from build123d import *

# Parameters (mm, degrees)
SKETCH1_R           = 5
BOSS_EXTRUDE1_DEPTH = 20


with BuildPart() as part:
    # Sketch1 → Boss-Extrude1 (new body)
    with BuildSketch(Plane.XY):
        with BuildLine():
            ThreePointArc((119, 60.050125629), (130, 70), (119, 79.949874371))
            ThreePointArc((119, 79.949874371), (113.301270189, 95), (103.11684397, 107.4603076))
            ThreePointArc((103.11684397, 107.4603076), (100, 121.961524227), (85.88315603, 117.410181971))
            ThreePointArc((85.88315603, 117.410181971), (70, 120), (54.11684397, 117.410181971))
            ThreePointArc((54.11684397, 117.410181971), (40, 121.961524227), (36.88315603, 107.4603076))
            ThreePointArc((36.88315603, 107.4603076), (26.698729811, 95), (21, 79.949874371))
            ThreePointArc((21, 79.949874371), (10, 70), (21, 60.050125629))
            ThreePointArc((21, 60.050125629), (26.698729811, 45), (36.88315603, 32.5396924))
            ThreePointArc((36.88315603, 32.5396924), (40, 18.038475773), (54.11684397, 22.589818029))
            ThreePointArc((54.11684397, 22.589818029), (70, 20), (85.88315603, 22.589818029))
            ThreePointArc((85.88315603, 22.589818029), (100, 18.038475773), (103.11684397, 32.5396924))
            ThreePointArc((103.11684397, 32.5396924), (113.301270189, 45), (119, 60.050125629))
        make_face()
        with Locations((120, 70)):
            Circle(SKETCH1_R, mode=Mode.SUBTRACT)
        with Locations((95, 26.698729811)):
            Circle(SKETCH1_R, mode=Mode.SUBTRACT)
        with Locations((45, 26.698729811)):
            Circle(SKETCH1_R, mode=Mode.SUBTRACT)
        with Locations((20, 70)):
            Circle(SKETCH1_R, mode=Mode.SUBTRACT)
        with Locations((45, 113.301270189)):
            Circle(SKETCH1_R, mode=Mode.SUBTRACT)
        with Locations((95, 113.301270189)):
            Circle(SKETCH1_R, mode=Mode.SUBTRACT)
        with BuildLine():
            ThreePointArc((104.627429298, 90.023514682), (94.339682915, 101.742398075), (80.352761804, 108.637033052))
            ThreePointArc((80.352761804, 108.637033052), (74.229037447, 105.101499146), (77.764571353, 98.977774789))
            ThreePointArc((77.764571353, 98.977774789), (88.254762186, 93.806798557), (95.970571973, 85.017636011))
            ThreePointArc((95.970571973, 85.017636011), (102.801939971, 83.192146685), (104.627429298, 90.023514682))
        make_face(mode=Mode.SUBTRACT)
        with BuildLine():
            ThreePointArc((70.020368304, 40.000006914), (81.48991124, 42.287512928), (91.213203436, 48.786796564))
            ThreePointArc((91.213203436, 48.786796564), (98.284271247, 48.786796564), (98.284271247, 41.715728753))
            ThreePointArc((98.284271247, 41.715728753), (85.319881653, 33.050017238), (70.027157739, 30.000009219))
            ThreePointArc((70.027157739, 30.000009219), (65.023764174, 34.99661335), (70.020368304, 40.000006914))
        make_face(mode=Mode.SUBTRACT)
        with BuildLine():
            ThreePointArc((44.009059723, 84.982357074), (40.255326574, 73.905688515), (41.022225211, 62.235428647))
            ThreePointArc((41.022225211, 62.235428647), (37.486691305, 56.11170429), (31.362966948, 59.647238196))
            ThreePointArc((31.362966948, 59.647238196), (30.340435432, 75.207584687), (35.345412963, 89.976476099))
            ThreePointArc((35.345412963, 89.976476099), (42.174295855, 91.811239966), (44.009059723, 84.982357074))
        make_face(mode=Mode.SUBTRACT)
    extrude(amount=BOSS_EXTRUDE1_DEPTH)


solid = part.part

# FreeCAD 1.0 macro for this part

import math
import FreeCAD as App
import Part
import Sketcher

V = App.Vector
Q = App.Units.Quantity

doc = App.newDocument("Part")
body = doc.addObject("PartDesign::Body", "Body")

# Sketch on XY plane
sketch1 = body.newObject("Sketcher::SketchObject", "Sketch")
sketch1.AttachmentSupport = (doc.getObject("XY_Plane"), [""])
sketch1.MapMode = "FlatFace"
sketch1.addGeometry([
    Part.ArcOfCircle(Part.Circle(V(120, 70, 0), V(0, 0, 1), 10), math.radians(-96), math.radians(96)),  # 0
    Part.ArcOfCircle(Part.Circle(V(70, 70, 0), V(0, 0, 1), 50), math.radians(11), math.radians(49)),  # 1
    Part.ArcOfCircle(Part.Circle(V(95, 113.3, 0), V(0, 0, 1), 10), math.radians(-36), math.radians(156)),  # 2
    Part.ArcOfCircle(Part.Circle(V(70, 70, 0), V(0, 0, 1), 50), math.radians(71), math.radians(109)),  # 3
    Part.ArcOfCircle(Part.Circle(V(45, 113.3, 0), V(0, 0, 1), 10), math.radians(24), math.radians(216)),  # 4
    Part.ArcOfCircle(Part.Circle(V(70, 70, 0), V(0, 0, 1), 50), math.radians(131), math.radians(169)),  # 5
    Part.ArcOfCircle(Part.Circle(V(20, 70, 0), V(0, 0, 1), 10), math.radians(84), math.radians(276)),  # 6
    Part.ArcOfCircle(Part.Circle(V(70, 70, 0), V(0, 0, 1), 50), math.radians(-169), math.radians(-131)),  # 7
    Part.ArcOfCircle(Part.Circle(V(45, 26.7, 0), V(0, 0, 1), 10), math.radians(144), math.radians(336)),  # 8
    Part.ArcOfCircle(Part.Circle(V(70, 70, 0), V(0, 0, 1), 50), math.radians(-109), math.radians(-71)),  # 9
    Part.ArcOfCircle(Part.Circle(V(95, 26.7, 0), V(0, 0, 1), 10), math.radians(-156), math.radians(36)),  # 10
    Part.ArcOfCircle(Part.Circle(V(70, 70, 0), V(0, 0, 1), 50), math.radians(-49), math.radians(-11)),  # 11
    Part.Circle(V(45, 26.7, 0), V(0, 0, 1), 5),  # 12
    Part.Circle(V(95, 26.7, 0), V(0, 0, 1), 5),  # 13
    Part.ArcOfCircle(Part.Circle(V(70, 35, 0), V(0, 0, 1), 5), math.radians(90), math.radians(270)),  # 14
    Part.ArcOfCircle(Part.Circle(V(70, 70, 0), V(0, 0, 1), 30), math.radians(-90), math.radians(-45)),  # 15
    Part.ArcOfCircle(Part.Circle(V(94.7, 45.3, 0), V(0, 0, 1), 5), math.radians(-45), math.radians(135)),  # 16
    Part.ArcOfCircle(Part.Circle(V(70, 70, 0), V(0, 0, 1), 40), math.radians(-90), math.radians(-45)),  # 17
    Part.Circle(V(20, 70, 0), V(0, 0, 1), 5),  # 18
    Part.ArcOfCircle(Part.Circle(V(39.7, 87.5, 0), V(0, 0, 1), 5), math.radians(-30), math.radians(150)),  # 19
    Part.ArcOfCircle(Part.Circle(V(70, 70, 0), V(0, 0, 1), 30), math.radians(150), math.radians(195)),  # 20
    Part.ArcOfCircle(Part.Circle(V(36.2, 60.9, 0), V(0, 0, 1), 5), math.radians(-165), math.radians(15)),  # 21
    Part.ArcOfCircle(Part.Circle(V(70, 70, 0), V(0, 0, 1), 40), math.radians(150), math.radians(195)),  # 22
    Part.Circle(V(45, 113.3, 0), V(0, 0, 1), 5),  # 23
    Part.Circle(V(120, 70, 0), V(0, 0, 1), 5),  # 24
    Part.ArcOfCircle(Part.Circle(V(70, 70, 0), V(0, 0, 1), 40), math.radians(30), math.radians(75)),  # 25
    Part.ArcOfCircle(Part.Circle(V(100.3, 87.5, 0), V(0, 0, 1), 5), math.radians(-150), math.radians(30)),  # 26
    Part.ArcOfCircle(Part.Circle(V(70, 70, 0), V(0, 0, 1), 30), math.radians(30), math.radians(75)),  # 27
    Part.ArcOfCircle(Part.Circle(V(79.1, 103.8, 0), V(0, 0, 1), 5), math.radians(75), math.radians(255)),  # 28
    Part.Circle(V(95, 113.3, 0), V(0, 0, 1), 5),  # 29
], False)
sketch1.addConstraint([
    Sketcher.Constraint("Coincident", 0, 2, 1, 1),
    Sketcher.Constraint("Coincident", 1, 2, 2, 1),
    Sketcher.Constraint("Coincident", 2, 2, 3, 1),
    Sketcher.Constraint("Coincident", 3, 2, 4, 1),
    Sketcher.Constraint("Coincident", 4, 2, 5, 1),
    Sketcher.Constraint("Coincident", 5, 2, 6, 1),
    Sketcher.Constraint("Coincident", 6, 2, 7, 1),
    Sketcher.Constraint("Coincident", 7, 2, 8, 1),
    Sketcher.Constraint("Coincident", 8, 2, 9, 1),
    Sketcher.Constraint("Coincident", 9, 2, 10, 1),
    Sketcher.Constraint("Coincident", 10, 2, 11, 1),
    Sketcher.Constraint("Coincident", 11, 2, 0, 1),
    Sketcher.Constraint("Tangent", 14, 1, 15, 1),
    Sketcher.Constraint("Tangent", 15, 2, 16, 2),
    Sketcher.Constraint("Tangent", 16, 1, 17, 2),
    Sketcher.Constraint("Tangent", 17, 1, 14, 2),
    Sketcher.Constraint("Tangent", 19, 1, 20, 1),
    Sketcher.Constraint("Tangent", 20, 2, 21, 2),
    Sketcher.Constraint("Tangent", 21, 1, 22, 2),
    Sketcher.Constraint("Tangent", 22, 1, 19, 2),
    Sketcher.Constraint("Tangent", 25, 1, 26, 2),
    Sketcher.Constraint("Tangent", 26, 1, 27, 1),
    Sketcher.Constraint("Tangent", 27, 2, 28, 2),
    Sketcher.Constraint("Tangent", 28, 1, 25, 2),
    Sketcher.Constraint("Coincident", 3, 3, 1, 3),
    Sketcher.Constraint("Coincident", 5, 3, 1, 3),
    Sketcher.Constraint("Coincident", 7, 3, 1, 3),
    Sketcher.Constraint("Coincident", 9, 3, 1, 3),
    Sketcher.Constraint("Coincident", 11, 3, 1, 3),
    Sketcher.Constraint("Coincident", 12, 3, 8, 3),
    Sketcher.Constraint("Coincident", 13, 3, 10, 3),
    Sketcher.Constraint("Coincident", 15, 3, 1, 3),
    Sketcher.Constraint("Coincident", 17, 3, 1, 3),
    Sketcher.Constraint("Coincident", 18, 3, 6, 3),
    Sketcher.Constraint("Coincident", 20, 3, 1, 3),
    Sketcher.Constraint("Coincident", 22, 3, 1, 3),
    Sketcher.Constraint("Coincident", 23, 3, 4, 3),
    Sketcher.Constraint("Coincident", 24, 3, 0, 3),
    Sketcher.Constraint("Coincident", 25, 3, 1, 3),
    Sketcher.Constraint("Coincident", 27, 3, 1, 3),
    Sketcher.Constraint("Coincident", 29, 3, 2, 3),
    Sketcher.Constraint("Equal", 0, 2),
    Sketcher.Constraint("Equal", 1, 3),
    Sketcher.Constraint("Equal", 2, 4),
    Sketcher.Constraint("Equal", 3, 5),
    Sketcher.Constraint("Equal", 4, 6),
    Sketcher.Constraint("Equal", 5, 7),
    Sketcher.Constraint("Equal", 6, 8),
    Sketcher.Constraint("Equal", 7, 9),
    Sketcher.Constraint("Equal", 8, 10),
    Sketcher.Constraint("Equal", 9, 11),
    Sketcher.Constraint("Equal", 12, 13),
    Sketcher.Constraint("Equal", 13, 14),
    Sketcher.Constraint("Equal", 16, 18),
    Sketcher.Constraint("Equal", 18, 19),
    Sketcher.Constraint("Equal", 15, 20),
    Sketcher.Constraint("Equal", 21, 23),
    Sketcher.Constraint("Equal", 23, 24),
    Sketcher.Constraint("Equal", 22, 25),
    Sketcher.Constraint("Equal", 24, 26),
    Sketcher.Constraint("Equal", 28, 29),
    Sketcher.Constraint("Horizontal", 0, 3, 1, 3),
    Sketcher.Constraint("Horizontal", 2, 3, 4, 3),
    Sketcher.Constraint("Horizontal", 5, 3, 6, 3),
    Sketcher.Constraint("Horizontal", 8, 3, 10, 3),
    Sketcher.Constraint("Horizontal", 2, 2, 3, 2),
    Sketcher.Constraint("Horizontal", 0, 2, 5, 2),
    Sketcher.Constraint("Horizontal", 8, 2, 9, 2),
    Sketcher.Constraint("Vertical", 4, 3, 8, 3),
    Sketcher.Constraint("Vertical", 4, 2, 7, 2),
    Sketcher.Constraint("Diameter", 12, Q("10 mm")),
    Sketcher.Constraint("Radius", 0, Q("10 mm")),
    Sketcher.Constraint("Radius", 1, Q("50 mm")),
    Sketcher.Constraint("Radius", 15, Q("30 mm")),
    Sketcher.Constraint("DistanceX", -1, 1, 0, 3, Q("120 mm")),
    Sketcher.Constraint("DistanceY", -1, 1, 0, 3, Q("70 mm")),
    Sketcher.Constraint("DistanceX", -1, 1, 1, 3, Q("70 mm")),
    Sketcher.Constraint("DistanceX", -1, 1, 2, 3, Q("95 mm")),
    Sketcher.Constraint("DistanceX", -1, 1, 26, 3, Q("100.299001 mm")),
    Sketcher.Constraint("DistanceY", 10, 3, 16, 1, Q("15.016999 mm")),
    Sketcher.Constraint("DistanceX", 17, 1, 9, 2, Q("15.855998 mm")),
    Sketcher.Constraint("DistanceX", 27, 2, 26, 1, Q("18.206001 mm")),
    Sketcher.Constraint("DistanceY", 5, 2, 22, 1, Q("10.026602 mm")),
    Sketcher.Constraint("DistanceY", -1, 1, 2, 3, Q("113.30127 mm")),
    Sketcher.Constraint("DistanceY", -1, 1, 20, 2, Q("62.235429 mm")),
])
pad1 = body.newObject("PartDesign::Pad", "Pad")
pad1.Profile = sketch1
pad1.Length = 20

doc.recompute()
